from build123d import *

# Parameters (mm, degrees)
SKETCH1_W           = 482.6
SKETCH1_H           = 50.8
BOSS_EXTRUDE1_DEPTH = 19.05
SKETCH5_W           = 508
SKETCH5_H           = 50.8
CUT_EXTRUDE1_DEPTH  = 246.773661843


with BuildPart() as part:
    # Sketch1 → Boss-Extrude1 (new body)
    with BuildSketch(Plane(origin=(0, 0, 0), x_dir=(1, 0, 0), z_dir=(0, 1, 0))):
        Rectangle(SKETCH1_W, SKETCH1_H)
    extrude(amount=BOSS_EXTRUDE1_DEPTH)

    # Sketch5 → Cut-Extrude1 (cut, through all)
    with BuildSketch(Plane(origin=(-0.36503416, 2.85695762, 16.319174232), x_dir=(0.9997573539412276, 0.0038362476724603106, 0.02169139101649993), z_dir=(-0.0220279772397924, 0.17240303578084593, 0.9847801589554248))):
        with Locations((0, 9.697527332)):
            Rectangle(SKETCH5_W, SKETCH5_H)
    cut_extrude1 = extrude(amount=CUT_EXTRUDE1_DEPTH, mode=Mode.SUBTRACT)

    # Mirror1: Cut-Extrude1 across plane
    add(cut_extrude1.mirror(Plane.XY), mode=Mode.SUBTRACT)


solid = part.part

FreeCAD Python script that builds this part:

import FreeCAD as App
import Part
import Sketcher
Q = App.Units.Quantity

doc = App.newDocument("Part")
body = doc.addObject("PartDesign::Body", "Body")

# Sketch on XZ plane
sketch1 = body.newObject("Sketcher::SketchObject", "Sketch")
sketch1.AttachmentSupport = (doc.getObject("XZ_Plane"), [""])
sketch1.MapMode = "FlatFace"
sketch1.addGeometry(Part.LineSegment(App.Vector(-241, -25, 0), App.Vector(-241, 25, 0)), False)
sketch1.addGeometry(Part.LineSegment(App.Vector(-241, 25, 0), App.Vector(241, 25, 0)), False)
sketch1.addGeometry(Part.LineSegment(App.Vector(241, 25, 0), App.Vector(241, -25, 0)), False)
sketch1.addGeometry(Part.LineSegment(App.Vector(241, -25, 0), App.Vector(-241, -25, 0)), False)
sketch1.addConstraint(Sketcher.Constraint("Coincident", 0, 2, 1, 1))
sketch1.addConstraint(Sketcher.Constraint("Coincident", 1, 2, 2, 1))
sketch1.addConstraint(Sketcher.Constraint("Coincident", 2, 2, 3, 1))
sketch1.addConstraint(Sketcher.Constraint("Coincident", 3, 2, 0, 1))
sketch1.addConstraint(Sketcher.Constraint("Vertical", 0))
sketch1.addConstraint(Sketcher.Constraint("Horizontal", 1))
sketch1.addConstraint(Sketcher.Constraint("Vertical", 2))
sketch1.addConstraint(Sketcher.Constraint("Horizontal", 3))
sketch1.addConstraint(Sketcher.Constraint("Symmetric", 0, 2, 2, 2, -1, 1))
sketch1.addConstraint(Sketcher.Constraint("DistanceX", 1, 1, 1, 2, Q("19 in")))
sketch1.addConstraint(Sketcher.Constraint("DistanceY", 0, 1, 0, 2, Q("2 in")))
pad1 = body.newObject("PartDesign::Pad", "Pad")
pad1.Profile = sketch1
pad1.Length = Q("0.75 in")
pad1.Reversed = True

# Sketch on an angled plane
sketch2 = body.newObject("Sketcher::SketchObject", "Sketch001")
sketch2.Placement = App.Placement(App.Vector(-0.365034, 2.856958, 16.319174), App.Rotation(App.Vector(0.999757354, 0.003836248, 0.021691391), App.Vector(-0.000038199, 0.985019023, -0.172445708), App.Vector(-0.022027977, 0.172403036, 0.984780159), "ZXY"))
sketch2.addGeometry(Part.LineSegment(App.Vector(-254, 35, 0), App.Vector(-254, -16, 0)), False)
sketch2.addGeometry(Part.LineSegment(App.Vector(-254, -16, 0), App.Vector(254, -16, 0)), False)
sketch2.addGeometry(Part.LineSegment(App.Vector(254, -16, 0), App.Vector(254, 35, 0)), False)
sketch2.addGeometry(Part.LineSegment(App.Vector(254, 35, 0), App.Vector(-254, 35, 0)), False)
sketch2.addConstraint(Sketcher.Constraint("Coincident", 0, 2, 1, 1))
sketch2.addConstraint(Sketcher.Constraint("Coincident", 1, 2, 2, 1))
sketch2.addConstraint(Sketcher.Constraint("Coincident", 2, 2, 3, 1))
sketch2.addConstraint(Sketcher.Constraint("Coincident", 3, 2, 0, 1))
sketch2.addConstraint(Sketcher.Constraint("Vertical", 0))
sketch2.addConstraint(Sketcher.Constraint("Horizontal", 1))
sketch2.addConstraint(Sketcher.Constraint("Vertical", 2))
sketch2.addConstraint(Sketcher.Constraint("Horizontal", 3))
sketch2.addConstraint(Sketcher.Constraint("DistanceX", 1, 1, 1, 2, Q("20 in")))
sketch2.addConstraint(Sketcher.Constraint("DistanceY", 0, 2, 0, 1, Q("2 in")))
sketch2.addConstraint(Sketcher.Constraint("DistanceX", 0, 2, -1, 1, Q("10 in")))
sketch2.addConstraint(Sketcher.Constraint("DistanceY", 0, 2, -1, 1, Q("15.702473 mm")))
pocket1 = body.newObject("PartDesign::Pocket", "Pocket")
pocket1.Profile = sketch2
pocket1.Type = "ThroughAll"
pocket1.Reversed = True
doc.recompute()

mirrored = body.newObject("PartDesign::Mirrored", "Mirrored")
mirrored.Originals = [pocket1]
mirrored.MirrorPlane = (doc.getObject("XY_Plane"), [""])
body.Tip = mirrored

doc.recompute()
